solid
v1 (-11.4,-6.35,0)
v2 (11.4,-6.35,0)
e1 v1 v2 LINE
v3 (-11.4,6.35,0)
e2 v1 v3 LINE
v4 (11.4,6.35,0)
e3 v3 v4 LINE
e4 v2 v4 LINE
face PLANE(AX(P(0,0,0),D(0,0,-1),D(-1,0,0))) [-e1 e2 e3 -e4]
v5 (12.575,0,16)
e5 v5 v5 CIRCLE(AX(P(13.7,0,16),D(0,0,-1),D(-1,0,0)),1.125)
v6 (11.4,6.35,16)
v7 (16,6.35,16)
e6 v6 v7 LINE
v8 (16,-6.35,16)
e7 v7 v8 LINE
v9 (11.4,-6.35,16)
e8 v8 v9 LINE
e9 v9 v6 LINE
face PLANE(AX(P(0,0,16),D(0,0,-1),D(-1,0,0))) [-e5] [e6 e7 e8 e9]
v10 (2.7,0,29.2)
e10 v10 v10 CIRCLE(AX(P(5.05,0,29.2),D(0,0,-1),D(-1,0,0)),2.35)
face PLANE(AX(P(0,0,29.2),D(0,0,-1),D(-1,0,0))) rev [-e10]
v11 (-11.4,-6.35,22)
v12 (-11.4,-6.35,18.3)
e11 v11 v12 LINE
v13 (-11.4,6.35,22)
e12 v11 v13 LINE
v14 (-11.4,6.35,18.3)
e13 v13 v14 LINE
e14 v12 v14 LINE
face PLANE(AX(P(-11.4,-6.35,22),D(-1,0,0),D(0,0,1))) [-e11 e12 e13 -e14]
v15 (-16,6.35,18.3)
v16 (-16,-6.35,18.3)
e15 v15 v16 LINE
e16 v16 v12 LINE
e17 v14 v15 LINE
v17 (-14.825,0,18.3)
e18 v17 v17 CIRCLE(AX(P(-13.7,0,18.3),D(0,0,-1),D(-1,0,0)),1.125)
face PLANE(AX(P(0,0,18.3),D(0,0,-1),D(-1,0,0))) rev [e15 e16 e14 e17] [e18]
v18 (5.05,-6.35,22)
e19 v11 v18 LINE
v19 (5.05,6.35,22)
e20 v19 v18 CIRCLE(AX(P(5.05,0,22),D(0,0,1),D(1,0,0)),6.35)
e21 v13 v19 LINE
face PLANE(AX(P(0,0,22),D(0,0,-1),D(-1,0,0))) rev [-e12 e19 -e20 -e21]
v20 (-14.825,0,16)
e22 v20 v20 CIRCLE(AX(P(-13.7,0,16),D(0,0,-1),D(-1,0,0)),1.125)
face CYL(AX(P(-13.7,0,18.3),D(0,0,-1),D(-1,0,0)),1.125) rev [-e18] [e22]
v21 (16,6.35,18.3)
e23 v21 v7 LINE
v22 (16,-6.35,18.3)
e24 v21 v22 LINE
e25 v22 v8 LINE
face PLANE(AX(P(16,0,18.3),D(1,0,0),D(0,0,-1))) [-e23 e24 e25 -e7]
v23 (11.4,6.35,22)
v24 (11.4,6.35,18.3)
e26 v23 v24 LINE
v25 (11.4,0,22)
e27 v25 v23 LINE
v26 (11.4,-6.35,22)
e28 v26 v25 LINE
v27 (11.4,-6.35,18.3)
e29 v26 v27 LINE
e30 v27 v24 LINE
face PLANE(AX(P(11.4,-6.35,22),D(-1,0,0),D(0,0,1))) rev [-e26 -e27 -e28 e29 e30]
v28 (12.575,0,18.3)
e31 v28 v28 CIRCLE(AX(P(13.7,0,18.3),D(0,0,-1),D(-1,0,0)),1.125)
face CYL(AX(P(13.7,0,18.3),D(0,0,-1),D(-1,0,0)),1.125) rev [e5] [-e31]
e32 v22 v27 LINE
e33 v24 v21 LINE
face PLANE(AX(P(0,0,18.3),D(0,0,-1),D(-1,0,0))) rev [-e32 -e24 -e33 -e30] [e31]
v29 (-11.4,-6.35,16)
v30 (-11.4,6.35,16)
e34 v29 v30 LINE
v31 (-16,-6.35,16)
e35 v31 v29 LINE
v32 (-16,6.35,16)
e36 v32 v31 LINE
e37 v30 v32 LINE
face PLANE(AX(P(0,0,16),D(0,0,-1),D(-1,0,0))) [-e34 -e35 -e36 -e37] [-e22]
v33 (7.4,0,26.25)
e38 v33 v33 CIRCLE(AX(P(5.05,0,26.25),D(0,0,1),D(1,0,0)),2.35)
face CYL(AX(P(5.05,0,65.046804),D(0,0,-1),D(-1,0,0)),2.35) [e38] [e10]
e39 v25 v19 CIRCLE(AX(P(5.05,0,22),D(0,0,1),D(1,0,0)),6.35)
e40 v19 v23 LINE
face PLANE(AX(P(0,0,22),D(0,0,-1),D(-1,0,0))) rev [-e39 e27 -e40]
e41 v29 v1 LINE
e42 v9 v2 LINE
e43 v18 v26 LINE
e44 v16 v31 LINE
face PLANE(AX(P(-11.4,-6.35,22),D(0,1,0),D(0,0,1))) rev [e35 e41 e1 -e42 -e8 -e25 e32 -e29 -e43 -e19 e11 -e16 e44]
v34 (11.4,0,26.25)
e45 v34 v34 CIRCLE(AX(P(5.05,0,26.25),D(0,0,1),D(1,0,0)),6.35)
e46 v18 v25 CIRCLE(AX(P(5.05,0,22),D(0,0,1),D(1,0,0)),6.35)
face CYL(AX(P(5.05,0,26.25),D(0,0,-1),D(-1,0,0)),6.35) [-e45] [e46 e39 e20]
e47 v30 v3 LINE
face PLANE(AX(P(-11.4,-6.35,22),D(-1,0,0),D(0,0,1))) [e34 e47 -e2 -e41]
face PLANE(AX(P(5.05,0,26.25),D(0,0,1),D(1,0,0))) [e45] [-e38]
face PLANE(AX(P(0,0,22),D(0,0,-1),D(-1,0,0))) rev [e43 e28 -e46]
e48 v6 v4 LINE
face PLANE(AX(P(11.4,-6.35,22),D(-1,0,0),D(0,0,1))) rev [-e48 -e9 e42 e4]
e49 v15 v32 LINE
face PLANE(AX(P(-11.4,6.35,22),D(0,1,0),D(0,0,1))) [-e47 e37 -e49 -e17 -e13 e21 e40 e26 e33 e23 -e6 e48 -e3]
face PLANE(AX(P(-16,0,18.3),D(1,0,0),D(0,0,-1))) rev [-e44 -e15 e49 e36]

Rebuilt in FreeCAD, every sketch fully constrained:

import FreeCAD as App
import Part
import Sketcher

V = App.Vector

doc = App.newDocument("Part")
body = doc.addObject("PartDesign::Body", "Body")

# Sketch on XY plane
sketch1 = body.newObject("Sketcher::SketchObject", "Sketch")
sketch1.AttachmentSupport = (doc.getObject("XY_Plane"), [""])
sketch1.MapMode = "FlatFace"
sketch1.addGeometry([
    Part.LineSegment(V(-11, 6, 0), V(-11, -6, 0)),
    Part.LineSegment(V(-11, -6, 0), V(11, -6, 0)),
    Part.LineSegment(V(11, -6, 0), V(11, 6, 0)),
    Part.LineSegment(V(11, 6, 0), V(-11, 6, 0)),
], False)
sketch1.addConstraint([
    Sketcher.Constraint("Coincident", 0, 2, 1, 1),
    Sketcher.Constraint("Coincident", 1, 2, 2, 1),
    Sketcher.Constraint("Coincident", 2, 2, 3, 1),
    Sketcher.Constraint("Coincident", 3, 2, 0, 1),
    Sketcher.Constraint("Vertical", 0),
    Sketcher.Constraint("Horizontal", 1),
    Sketcher.Constraint("Vertical", 2),
    Sketcher.Constraint("Horizontal", 3),
    Sketcher.Constraint("Symmetric", 0, 2, 2, 2, -1, 1),
    Sketcher.Constraint("DistanceX", 1, 1, 1, 2, 22.8),
    Sketcher.Constraint("DistanceY", 0, 2, 0, 1, 12.7),
])
pad1 = body.newObject("PartDesign::Pad", "Pad")
pad1.Profile = sketch1
pad1.Length = 22

# Sketch on XY plane
sketch2 = body.newObject("Sketcher::SketchObject", "Sketch001")
sketch2.AttachmentSupport = (doc.getObject("XY_Plane"), [""])
sketch2.MapMode = "FlatFace"
sketch2.AttachmentOffset = App.Placement(V(0, 0, 16), App.Rotation())
sketch2.addGeometry([
    Part.LineSegment(V(-11.4, 6.3, 0), V(-11.4, -6.3, 0)),  # 0
    Part.LineSegment(V(-11.4, -6.3, 0), V(-16, -6.3, 0)),  # 1
    Part.LineSegment(V(-16, -6.3, 0), V(-16, 6.3, 0)),  # 2
    Part.LineSegment(V(-16, 6.3, 0), V(-11.4, 6.3, 0)),  # 3
    Part.Circle(V(-13.7, 0, 0), V(0, 0, 1), 1.1),  # 4
    Part.LineSegment(V(16, 6.3, 0), V(16, -6.3, 0)),  # 5
    Part.LineSegment(V(16, -6.3, 0), V(11.4, -6.3, 0)),  # 6
    Part.LineSegment(V(11.4, -6.3, 0), V(11.4, 6.3, 0)),  # 7
    Part.LineSegment(V(11.4, 6.3, 0), V(16, 6.3, 0)),  # 8
    Part.Circle(V(13.7, 0, 0), V(0, 0, 1), 1.1),  # 9
], False)
sketch2.addConstraint([
    Sketcher.Constraint("Coincident", 0, 2, 1, 1),
    Sketcher.Constraint("Coincident", 1, 2, 2, 1),
    Sketcher.Constraint("Coincident", 2, 2, 3, 1),
    Sketcher.Constraint("Coincident", 3, 2, 0, 1),
    Sketcher.Constraint("Coincident", 5, 2, 6, 1),
    Sketcher.Constraint("Coincident", 6, 2, 7, 1),
    Sketcher.Constraint("Coincident", 7, 2, 8, 1),
    Sketcher.Constraint("Coincident", 8, 2, 5, 1),
    Sketcher.Constraint("Vertical", 0),
    Sketcher.Constraint("Horizontal", 1),
    Sketcher.Constraint("Vertical", 2),
    Sketcher.Constraint("Horizontal", 3),
    Sketcher.Constraint("Vertical", 5),
    Sketcher.Constraint("Horizontal", 6),
    Sketcher.Constraint("Vertical", 7),
    Sketcher.Constraint("Horizontal", 8),
    Sketcher.Constraint("Equal", 4, 9),
    Sketcher.Constraint("Symmetric", 4, 3, 9, 3, -1, 1),
    Sketcher.Constraint("Symmetric", 2, 2, 5, 2, -1, 1),
    Sketcher.Constraint("Symmetric", 0, 2, 7, 2, -1, 1),
    Sketcher.Constraint("PointOnObject", 4, 3, -1),
    Sketcher.Constraint("Horizontal", 1, 2, 5, 2),
    Sketcher.Constraint("Diameter", 4, 2.25),
    Sketcher.Constraint("DistanceX", 1, 2, 1, 1, 4.6),
    Sketcher.Constraint("DistanceY", 0, 2, 0, 1, 12.7),
    Sketcher.Constraint("DistanceX", 1, 2, -1, 1, 16.0),
    Sketcher.Constraint("DistanceX", 4, 3, -1, 1, 13.7),
])
pad2 = body.newObject("PartDesign::Pad", "Pad001")
pad2.Profile = sketch2
pad2.Length = 2.3

# Sketch on XY plane
sketch3 = body.newObject("Sketcher::SketchObject", "Sketch002")
sketch3.AttachmentSupport = (doc.getObject("XY_Plane"), [""])
sketch3.MapMode = "FlatFace"
sketch3.AttachmentOffset = App.Placement(V(0, 0, 22), App.Rotation())
sketch3.addGeometry(Part.Circle(V(5, 0, 0), V(0, 0, 1), 2.4), False)
sketch3.addConstraint([
    Sketcher.Constraint("PointOnObject", 0, 3, -1),
    Sketcher.Constraint("Diameter", 0, 4.7),
    Sketcher.Constraint("DistanceX", -1, 1, 0, 3, 5.05),
])
pad3 = body.newObject("PartDesign::Pad", "Pad002")
pad3.Profile = sketch3
pad3.Length = 7.2

# Sketch on XY plane
sketch4 = body.newObject("Sketcher::SketchObject", "Sketch003")
sketch4.AttachmentSupport = (doc.getObject("XY_Plane"), [""])
sketch4.MapMode = "FlatFace"
sketch4.AttachmentOffset = App.Placement(V(0, 0, 22), App.Rotation())
sketch4.addGeometry(Part.Circle(V(5, 0, 0), V(0, 0, 1), 6), False)
sketch4.addConstraint([
    Sketcher.Constraint("PointOnObject", 0, 3, -1),
    Sketcher.Constraint("Diameter", 0, 12.7),
    Sketcher.Constraint("DistanceX", -1, 1, 0, 3, 5.05),
])
pad4 = body.newObject("PartDesign::Pad", "Pad003")
pad4.Profile = sketch4
pad4.Length = 4.25

doc.recompute()
